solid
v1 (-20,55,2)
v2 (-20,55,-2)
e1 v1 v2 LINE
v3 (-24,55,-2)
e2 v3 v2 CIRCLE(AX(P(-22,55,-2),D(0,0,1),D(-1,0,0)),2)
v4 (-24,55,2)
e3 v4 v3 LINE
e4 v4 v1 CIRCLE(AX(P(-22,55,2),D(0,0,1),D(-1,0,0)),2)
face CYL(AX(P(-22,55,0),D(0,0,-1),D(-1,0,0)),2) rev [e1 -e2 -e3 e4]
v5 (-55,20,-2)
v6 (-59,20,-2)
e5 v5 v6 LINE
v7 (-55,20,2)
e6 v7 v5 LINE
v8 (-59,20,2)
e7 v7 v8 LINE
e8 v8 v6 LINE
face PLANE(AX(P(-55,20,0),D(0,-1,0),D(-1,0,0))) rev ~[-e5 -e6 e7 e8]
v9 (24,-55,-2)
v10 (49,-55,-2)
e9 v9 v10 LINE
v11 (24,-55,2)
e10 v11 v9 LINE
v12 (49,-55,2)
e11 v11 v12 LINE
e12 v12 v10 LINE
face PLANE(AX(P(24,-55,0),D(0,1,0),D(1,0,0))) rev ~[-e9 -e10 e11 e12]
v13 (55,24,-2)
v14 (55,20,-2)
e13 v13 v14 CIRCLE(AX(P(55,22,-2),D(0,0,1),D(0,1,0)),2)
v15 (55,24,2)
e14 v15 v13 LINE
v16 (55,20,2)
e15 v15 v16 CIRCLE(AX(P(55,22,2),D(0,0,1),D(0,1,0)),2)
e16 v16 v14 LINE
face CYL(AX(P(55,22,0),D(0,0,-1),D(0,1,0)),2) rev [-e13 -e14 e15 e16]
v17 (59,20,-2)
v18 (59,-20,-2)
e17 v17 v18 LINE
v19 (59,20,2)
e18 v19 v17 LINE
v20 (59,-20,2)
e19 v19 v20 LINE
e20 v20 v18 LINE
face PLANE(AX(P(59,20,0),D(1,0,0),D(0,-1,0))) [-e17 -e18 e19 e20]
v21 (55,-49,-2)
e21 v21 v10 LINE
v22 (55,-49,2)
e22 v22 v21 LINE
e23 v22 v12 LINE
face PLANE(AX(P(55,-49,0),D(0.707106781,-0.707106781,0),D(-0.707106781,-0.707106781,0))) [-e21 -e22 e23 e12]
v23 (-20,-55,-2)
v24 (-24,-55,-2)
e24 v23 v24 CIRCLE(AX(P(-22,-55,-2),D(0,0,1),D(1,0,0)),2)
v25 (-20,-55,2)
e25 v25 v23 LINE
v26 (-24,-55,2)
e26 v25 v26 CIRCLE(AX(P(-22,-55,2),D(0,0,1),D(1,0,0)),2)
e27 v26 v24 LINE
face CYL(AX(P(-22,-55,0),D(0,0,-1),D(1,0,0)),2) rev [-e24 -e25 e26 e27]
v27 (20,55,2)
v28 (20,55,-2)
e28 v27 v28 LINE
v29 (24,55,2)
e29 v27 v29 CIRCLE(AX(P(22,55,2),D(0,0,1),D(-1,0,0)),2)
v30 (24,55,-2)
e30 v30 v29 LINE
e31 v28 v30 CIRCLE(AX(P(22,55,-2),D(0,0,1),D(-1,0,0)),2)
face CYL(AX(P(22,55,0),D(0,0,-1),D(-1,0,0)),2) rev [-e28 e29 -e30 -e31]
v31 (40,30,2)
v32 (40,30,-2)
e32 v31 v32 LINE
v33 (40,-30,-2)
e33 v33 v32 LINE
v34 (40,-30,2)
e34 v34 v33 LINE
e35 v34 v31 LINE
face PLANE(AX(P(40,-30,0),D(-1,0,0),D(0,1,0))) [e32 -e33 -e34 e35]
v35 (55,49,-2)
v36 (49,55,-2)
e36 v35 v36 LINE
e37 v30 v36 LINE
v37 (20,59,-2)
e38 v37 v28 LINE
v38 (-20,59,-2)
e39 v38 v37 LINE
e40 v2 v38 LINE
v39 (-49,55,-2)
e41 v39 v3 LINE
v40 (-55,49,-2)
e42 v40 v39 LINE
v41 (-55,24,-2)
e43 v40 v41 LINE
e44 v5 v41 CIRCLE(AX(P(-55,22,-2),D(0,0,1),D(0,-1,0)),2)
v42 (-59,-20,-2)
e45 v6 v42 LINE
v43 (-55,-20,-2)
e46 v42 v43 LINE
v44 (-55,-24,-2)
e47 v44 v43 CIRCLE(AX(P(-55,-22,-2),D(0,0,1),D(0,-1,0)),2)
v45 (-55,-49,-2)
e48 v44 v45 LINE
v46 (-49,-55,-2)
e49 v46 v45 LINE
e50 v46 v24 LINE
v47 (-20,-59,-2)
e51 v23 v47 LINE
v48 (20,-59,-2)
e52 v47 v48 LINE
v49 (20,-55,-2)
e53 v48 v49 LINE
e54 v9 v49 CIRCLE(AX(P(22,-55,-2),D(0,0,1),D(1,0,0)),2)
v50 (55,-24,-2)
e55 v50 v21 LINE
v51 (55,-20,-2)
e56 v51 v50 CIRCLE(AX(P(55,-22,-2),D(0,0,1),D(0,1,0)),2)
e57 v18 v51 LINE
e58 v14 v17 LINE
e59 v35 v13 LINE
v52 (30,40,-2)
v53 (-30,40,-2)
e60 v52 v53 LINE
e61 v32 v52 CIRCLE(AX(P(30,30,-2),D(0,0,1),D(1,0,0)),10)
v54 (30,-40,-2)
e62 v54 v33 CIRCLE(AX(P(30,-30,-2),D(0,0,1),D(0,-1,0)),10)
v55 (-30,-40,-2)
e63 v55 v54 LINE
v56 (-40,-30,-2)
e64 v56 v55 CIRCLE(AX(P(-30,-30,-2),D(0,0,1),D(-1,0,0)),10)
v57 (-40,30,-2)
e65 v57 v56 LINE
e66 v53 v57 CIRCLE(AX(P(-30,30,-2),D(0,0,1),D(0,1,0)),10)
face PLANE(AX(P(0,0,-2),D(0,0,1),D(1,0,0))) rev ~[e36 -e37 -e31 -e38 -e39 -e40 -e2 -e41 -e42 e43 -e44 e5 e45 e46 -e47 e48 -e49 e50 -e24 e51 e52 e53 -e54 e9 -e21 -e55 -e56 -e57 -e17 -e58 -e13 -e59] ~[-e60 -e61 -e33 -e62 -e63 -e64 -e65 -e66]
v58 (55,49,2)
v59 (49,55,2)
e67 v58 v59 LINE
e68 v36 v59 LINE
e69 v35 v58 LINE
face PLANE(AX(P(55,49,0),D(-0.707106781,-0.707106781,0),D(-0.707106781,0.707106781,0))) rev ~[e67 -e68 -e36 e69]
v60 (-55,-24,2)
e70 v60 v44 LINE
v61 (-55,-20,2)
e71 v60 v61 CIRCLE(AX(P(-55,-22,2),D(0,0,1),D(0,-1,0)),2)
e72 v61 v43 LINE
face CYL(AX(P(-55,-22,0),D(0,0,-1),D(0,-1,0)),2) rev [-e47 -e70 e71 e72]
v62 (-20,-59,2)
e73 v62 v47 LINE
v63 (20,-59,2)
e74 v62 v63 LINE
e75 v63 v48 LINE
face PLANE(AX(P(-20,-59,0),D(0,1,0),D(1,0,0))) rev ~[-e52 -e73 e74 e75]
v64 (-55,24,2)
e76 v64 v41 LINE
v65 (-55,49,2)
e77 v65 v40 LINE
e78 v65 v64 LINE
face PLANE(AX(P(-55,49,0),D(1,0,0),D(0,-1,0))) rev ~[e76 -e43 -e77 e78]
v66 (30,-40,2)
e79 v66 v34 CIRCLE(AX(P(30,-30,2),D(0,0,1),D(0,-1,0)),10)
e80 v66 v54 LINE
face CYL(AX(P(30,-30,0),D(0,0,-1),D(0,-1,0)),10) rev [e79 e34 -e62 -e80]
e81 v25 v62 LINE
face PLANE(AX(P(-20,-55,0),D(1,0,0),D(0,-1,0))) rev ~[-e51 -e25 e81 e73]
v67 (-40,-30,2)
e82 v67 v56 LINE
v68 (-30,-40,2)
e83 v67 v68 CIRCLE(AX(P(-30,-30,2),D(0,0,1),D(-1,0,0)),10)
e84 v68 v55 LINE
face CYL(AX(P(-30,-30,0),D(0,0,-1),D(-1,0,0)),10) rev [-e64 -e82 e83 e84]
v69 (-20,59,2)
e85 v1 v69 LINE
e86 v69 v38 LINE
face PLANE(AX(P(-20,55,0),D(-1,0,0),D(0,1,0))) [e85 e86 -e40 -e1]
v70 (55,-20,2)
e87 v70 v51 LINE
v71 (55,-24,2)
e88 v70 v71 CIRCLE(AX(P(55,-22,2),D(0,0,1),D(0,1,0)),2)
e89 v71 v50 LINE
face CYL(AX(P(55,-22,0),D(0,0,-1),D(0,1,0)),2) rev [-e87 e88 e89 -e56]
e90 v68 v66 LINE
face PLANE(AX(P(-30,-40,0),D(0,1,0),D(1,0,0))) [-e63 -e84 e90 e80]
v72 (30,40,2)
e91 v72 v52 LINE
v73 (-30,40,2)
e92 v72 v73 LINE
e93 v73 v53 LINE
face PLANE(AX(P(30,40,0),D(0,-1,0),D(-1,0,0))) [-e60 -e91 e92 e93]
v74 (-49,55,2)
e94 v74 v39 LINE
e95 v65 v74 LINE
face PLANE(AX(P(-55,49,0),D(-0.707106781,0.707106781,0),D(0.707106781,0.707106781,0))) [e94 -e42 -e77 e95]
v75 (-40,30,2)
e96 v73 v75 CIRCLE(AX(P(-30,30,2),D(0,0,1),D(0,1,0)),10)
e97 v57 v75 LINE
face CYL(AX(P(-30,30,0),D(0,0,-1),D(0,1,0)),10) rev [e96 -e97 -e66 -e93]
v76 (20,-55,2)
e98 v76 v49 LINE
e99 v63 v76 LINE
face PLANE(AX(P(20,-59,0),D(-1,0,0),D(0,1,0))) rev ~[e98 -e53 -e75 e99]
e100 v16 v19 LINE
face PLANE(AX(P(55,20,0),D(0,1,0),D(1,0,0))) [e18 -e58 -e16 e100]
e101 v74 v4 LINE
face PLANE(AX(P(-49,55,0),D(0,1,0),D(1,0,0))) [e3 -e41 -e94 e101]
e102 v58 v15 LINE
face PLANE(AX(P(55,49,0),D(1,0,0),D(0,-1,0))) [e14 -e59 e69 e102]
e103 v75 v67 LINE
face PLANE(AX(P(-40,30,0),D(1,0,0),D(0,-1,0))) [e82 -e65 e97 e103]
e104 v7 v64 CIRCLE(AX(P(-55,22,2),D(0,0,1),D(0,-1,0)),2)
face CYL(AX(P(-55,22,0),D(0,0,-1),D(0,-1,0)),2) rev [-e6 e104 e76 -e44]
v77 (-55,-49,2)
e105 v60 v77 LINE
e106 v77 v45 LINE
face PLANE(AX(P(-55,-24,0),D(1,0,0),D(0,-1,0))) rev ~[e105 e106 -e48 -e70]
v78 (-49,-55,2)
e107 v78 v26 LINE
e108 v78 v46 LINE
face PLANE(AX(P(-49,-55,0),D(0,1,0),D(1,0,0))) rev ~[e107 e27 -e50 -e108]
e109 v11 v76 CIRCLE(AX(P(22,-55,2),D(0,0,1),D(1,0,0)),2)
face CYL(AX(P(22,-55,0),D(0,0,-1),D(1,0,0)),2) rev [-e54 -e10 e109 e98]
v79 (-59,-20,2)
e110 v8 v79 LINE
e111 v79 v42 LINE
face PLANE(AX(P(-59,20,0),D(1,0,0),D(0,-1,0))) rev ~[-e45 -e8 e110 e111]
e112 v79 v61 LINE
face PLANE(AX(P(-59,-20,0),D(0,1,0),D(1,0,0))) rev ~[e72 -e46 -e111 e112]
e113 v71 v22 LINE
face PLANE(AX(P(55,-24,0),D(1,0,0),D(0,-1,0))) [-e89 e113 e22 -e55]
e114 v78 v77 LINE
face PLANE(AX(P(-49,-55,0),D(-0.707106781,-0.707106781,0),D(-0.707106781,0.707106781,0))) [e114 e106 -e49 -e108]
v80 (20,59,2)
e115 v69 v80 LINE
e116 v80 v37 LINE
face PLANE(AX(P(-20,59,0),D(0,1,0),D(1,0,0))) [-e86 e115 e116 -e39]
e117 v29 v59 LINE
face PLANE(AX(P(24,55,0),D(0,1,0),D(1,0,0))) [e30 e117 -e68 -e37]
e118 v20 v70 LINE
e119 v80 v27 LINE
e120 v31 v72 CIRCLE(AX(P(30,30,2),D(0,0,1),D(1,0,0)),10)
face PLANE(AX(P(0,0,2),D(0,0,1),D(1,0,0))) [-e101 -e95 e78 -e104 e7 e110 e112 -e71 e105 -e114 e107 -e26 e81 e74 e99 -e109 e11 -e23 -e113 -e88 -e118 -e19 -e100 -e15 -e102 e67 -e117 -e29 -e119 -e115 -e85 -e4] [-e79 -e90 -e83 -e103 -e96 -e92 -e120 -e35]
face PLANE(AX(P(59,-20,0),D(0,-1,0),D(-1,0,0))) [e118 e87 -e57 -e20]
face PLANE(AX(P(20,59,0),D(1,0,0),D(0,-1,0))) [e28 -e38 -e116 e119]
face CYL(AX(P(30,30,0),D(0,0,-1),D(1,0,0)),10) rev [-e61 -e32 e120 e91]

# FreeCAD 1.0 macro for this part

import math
import FreeCAD as App
import Part
import Sketcher
from FreeCAD import Vector
Q = App.Units.Quantity

doc = App.newDocument("Part")
body = doc.addObject("PartDesign::Body", "Body")

# Sketch on XY plane
sketch1 = doc.addObject("Sketcher::SketchObject", "Sketch")
body.addObject(sketch1)
sketch1.AttachmentSupport = (doc.XY_Plane, [""])
sketch1.MapMode = "FlatFace"
sketch1.addGeometry(Part.LineSegment(Vector(55, 24, 0), Vector(55, 49, 0)), False)
sketch1.addGeometry(Part.LineSegment(Vector(55, 49, 0), Vector(49, 55, 0)), False)
sketch1.addGeometry(Part.LineSegment(Vector(49, 55, 0), Vector(24, 55, 0)), False)
sketch1.addGeometry(Part.ArcOfCircle(Part.Circle(Vector(22, 55, 0), Vector(0, 0, 1), 2), math.radians(180), math.radians(360)), False)
sketch1.addGeometry(Part.LineSegment(Vector(20, 55, 0), Vector(20, 59, 0)), False)
sketch1.addGeometry(Part.LineSegment(Vector(20, 59, 0), Vector(-20, 59, 0)), False)
sketch1.addGeometry(Part.LineSegment(Vector(-20, 59, 0), Vector(-20, 55, 0)), False)
sketch1.addGeometry(Part.ArcOfCircle(Part.Circle(Vector(-22, 55, 0), Vector(0, 0, 1), 2), math.radians(180), math.radians(360)), False)
sketch1.addGeometry(Part.LineSegment(Vector(-24, 55, 0), Vector(-49, 55, 0)), False)
sketch1.addGeometry(Part.LineSegment(Vector(-49, 55, 0), Vector(-55, 49, 0)), False)
sketch1.addGeometry(Part.LineSegment(Vector(-55, 49, 0), Vector(-55, 24, 0)), False)
sketch1.addGeometry(Part.ArcOfCircle(Part.Circle(Vector(-55, 22, 0), Vector(0, 0, 1), 2), math.radians(-90), math.radians(90)), False)
sketch1.addGeometry(Part.LineSegment(Vector(-55, 20, 0), Vector(-59, 20, 0)), False)
sketch1.addGeometry(Part.LineSegment(Vector(-59, 20, 0), Vector(-59, -20, 0)), False)
sketch1.addGeometry(Part.LineSegment(Vector(-59, -20, 0), Vector(-55, -20, 0)), False)
sketch1.addGeometry(Part.ArcOfCircle(Part.Circle(Vector(-55, -22, 0), Vector(0, 0, 1), 2), math.radians(-90), math.radians(90)), False)
sketch1.addGeometry(Part.LineSegment(Vector(-55, -24, 0), Vector(-55, -49, 0)), False)
sketch1.addGeometry(Part.LineSegment(Vector(-55, -49, 0), Vector(-49, -55, 0)), False)
sketch1.addGeometry(Part.LineSegment(Vector(-49, -55, 0), Vector(-24, -55, 0)), False)
sketch1.addGeometry(Part.ArcOfCircle(Part.Circle(Vector(-22, -55, 0), Vector(0, 0, 1), 2), math.radians(0), math.radians(180)), False)
sketch1.addGeometry(Part.LineSegment(Vector(-20, -55, 0), Vector(-20, -59, 0)), False)
sketch1.addGeometry(Part.LineSegment(Vector(-20, -59, 0), Vector(20, -59, 0)), False)
sketch1.addGeometry(Part.LineSegment(Vector(20, -59, 0), Vector(20, -55, 0)), False)
sketch1.addGeometry(Part.ArcOfCircle(Part.Circle(Vector(22, -55, 0), Vector(0, 0, 1), 2), math.radians(0), math.radians(180)), False)
sketch1.addGeometry(Part.LineSegment(Vector(24, -55, 0), Vector(49, -55, 0)), False)
sketch1.addGeometry(Part.LineSegment(Vector(49, -55, 0), Vector(55, -49, 0)), False)
sketch1.addGeometry(Part.LineSegment(Vector(55, -49, 0), Vector(55, -24, 0)), False)
sketch1.addGeometry(Part.ArcOfCircle(Part.Circle(Vector(55, -22, 0), Vector(0, 0, 1), 2), math.radians(90), math.radians(270)), False)
sketch1.addGeometry(Part.LineSegment(Vector(55, -20, 0), Vector(59, -20, 0)), False)
sketch1.addGeometry(Part.LineSegment(Vector(59, -20, 0), Vector(59, 20, 0)), False)
sketch1.addGeometry(Part.LineSegment(Vector(59, 20, 0), Vector(55, 20, 0)), False)
sketch1.addGeometry(Part.ArcOfCircle(Part.Circle(Vector(55, 22, 0), Vector(0, 0, 1), 2), math.radians(90), math.radians(270)), False)
sketch1.addGeometry(Part.LineSegment(Vector(-40, -30, 0), Vector(-40, 30, 0)), False)
sketch1.addGeometry(Part.ArcOfCircle(Part.Circle(Vector(-30, 30, 0), Vector(0, 0, 1), 10), math.radians(90), math.radians(180)), False)
sketch1.addGeometry(Part.LineSegment(Vector(-30, 40, 0), Vector(30, 40, 0)), False)
sketch1.addGeometry(Part.ArcOfCircle(Part.Circle(Vector(30, 30, 0), Vector(0, 0, 1), 10), math.radians(0), math.radians(90)), False)
sketch1.addGeometry(Part.LineSegment(Vector(40, 30, 0), Vector(40, -30, 0)), False)
sketch1.addGeometry(Part.ArcOfCircle(Part.Circle(Vector(30, -30, 0), Vector(0, 0, 1), 10), math.radians(-90), math.radians(0)), False)
sketch1.addGeometry(Part.LineSegment(Vector(30, -40, 0), Vector(-30, -40, 0)), False)
sketch1.addGeometry(Part.ArcOfCircle(Part.Circle(Vector(-30, -30, 0), Vector(0, 0, 1), 10), math.radians(180), math.radians(270)), False)
sketch1.addConstraint(Sketcher.Constraint("Coincident", 0, 2, 1, 1))
sketch1.addConstraint(Sketcher.Constraint("Coincident", 1, 2, 2, 1))
sketch1.addConstraint(Sketcher.Constraint("Coincident", 2, 2, 3, 2))
sketch1.addConstraint(Sketcher.Constraint("Tangent", 3, 1, 4, 1))
sketch1.addConstraint(Sketcher.Constraint("Coincident", 4, 2, 5, 1))
sketch1.addConstraint(Sketcher.Constraint("Coincident", 5, 2, 6, 1))
sketch1.addConstraint(Sketcher.Constraint("Tangent", 6, 2, 7, 2))
sketch1.addConstraint(Sketcher.Constraint("Coincident", 7, 1, 8, 1))
sketch1.addConstraint(Sketcher.Constraint("Coincident", 8, 2, 9, 1))
sketch1.addConstraint(Sketcher.Constraint("Coincident", 9, 2, 10, 1))
sketch1.addConstraint(Sketcher.Constraint("Coincident", 10, 2, 11, 2))
sketch1.addConstraint(Sketcher.Constraint("Tangent", 11, 1, 12, 1))
sketch1.addConstraint(Sketcher.Constraint("Coincident", 12, 2, 13, 1))
sketch1.addConstraint(Sketcher.Constraint("Coincident", 13, 2, 14, 1))
sketch1.addConstraint(Sketcher.Constraint("Tangent", 14, 2, 15, 2))
sketch1.addConstraint(Sketcher.Constraint("Coincident", 15, 1, 16, 1))
sketch1.addConstraint(Sketcher.Constraint("Coincident", 16, 2, 17, 1))
sketch1.addConstraint(Sketcher.Constraint("Coincident", 17, 2, 18, 1))
sketch1.addConstraint(Sketcher.Constraint("Coincident", 18, 2, 19, 2))
sketch1.addConstraint(Sketcher.Constraint("Tangent", 19, 1, 20, 1))
sketch1.addConstraint(Sketcher.Constraint("Coincident", 20, 2, 21, 1))
sketch1.addConstraint(Sketcher.Constraint("Coincident", 21, 2, 22, 1))
sketch1.addConstraint(Sketcher.Constraint("Tangent", 22, 2, 23, 2))
sketch1.addConstraint(Sketcher.Constraint("Coincident", 23, 1, 24, 1))
sketch1.addConstraint(Sketcher.Constraint("Coincident", 24, 2, 25, 1))
sketch1.addConstraint(Sketcher.Constraint("Coincident", 25, 2, 26, 1))
sketch1.addConstraint(Sketcher.Constraint("Coincident", 26, 2, 27, 2))
sketch1.addConstraint(Sketcher.Constraint("Tangent", 27, 1, 28, 1))
sketch1.addConstraint(Sketcher.Constraint("Coincident", 28, 2, 29, 1))
sketch1.addConstraint(Sketcher.Constraint("Coincident", 29, 2, 30, 1))
sketch1.addConstraint(Sketcher.Constraint("Tangent", 30, 2, 31, 2))
sketch1.addConstraint(Sketcher.Constraint("Coincident", 31, 1, 0, 1))
sketch1.addConstraint(Sketcher.Constraint("Tangent", 32, 2, 33, 2))
sketch1.addConstraint(Sketcher.Constraint("Tangent", 33, 1, 34, 1))
sketch1.addConstraint(Sketcher.Constraint("Tangent", 34, 2, 35, 2))
sketch1.addConstraint(Sketcher.Constraint("Tangent", 35, 1, 36, 1))
sketch1.addConstraint(Sketcher.Constraint("Tangent", 36, 2, 37, 2))
sketch1.addConstraint(Sketcher.Constraint("Tangent", 37, 1, 38, 1))
sketch1.addConstraint(Sketcher.Constraint("Tangent", 38, 2, 39, 2))
sketch1.addConstraint(Sketcher.Constraint("Tangent", 39, 1, 32, 1))
sketch1.addConstraint(Sketcher.Constraint("Vertical", 0))
sketch1.addConstraint(Sketcher.Constraint("Horizontal", 2))
sketch1.addConstraint(Sketcher.Constraint("Vertical", 4))
sketch1.addConstraint(Sketcher.Constraint("Horizontal", 5))
sketch1.addConstraint(Sketcher.Constraint("Vertical", 6))
sketch1.addConstraint(Sketcher.Constraint("Horizontal", 8))
sketch1.addConstraint(Sketcher.Constraint("Vertical", 10))
sketch1.addConstraint(Sketcher.Constraint("Horizontal", 12))
sketch1.addConstraint(Sketcher.Constraint("Vertical", 13))
sketch1.addConstraint(Sketcher.Constraint("Horizontal", 14))
sketch1.addConstraint(Sketcher.Constraint("Vertical", 16))
sketch1.addConstraint(Sketcher.Constraint("Horizontal", 18))
sketch1.addConstraint(Sketcher.Constraint("Vertical", 20))
sketch1.addConstraint(Sketcher.Constraint("Horizontal", 21))
sketch1.addConstraint(Sketcher.Constraint("Vertical", 22))
sketch1.addConstraint(Sketcher.Constraint("Horizontal", 24))
sketch1.addConstraint(Sketcher.Constraint("Vertical", 26))
sketch1.addConstraint(Sketcher.Constraint("Horizontal", 28))
sketch1.addConstraint(Sketcher.Constraint("Vertical", 29))
sketch1.addConstraint(Sketcher.Constraint("Horizontal", 30))
sketch1.addConstraint(Sketcher.Constraint("Vertical", 32))
sketch1.addConstraint(Sketcher.Constraint("Horizontal", 34))
sketch1.addConstraint(Sketcher.Constraint("Vertical", 36))
sketch1.addConstraint(Sketcher.Constraint("Horizontal", 38))
sketch1.addConstraint(Sketcher.Constraint("Equal", 3, 7))
sketch1.addConstraint(Sketcher.Constraint("Equal", 7, 11))
sketch1.addConstraint(Sketcher.Constraint("Equal", 11, 15))
sketch1.addConstraint(Sketcher.Constraint("Equal", 15, 19))
sketch1.addConstraint(Sketcher.Constraint("Equal", 19, 23))
sketch1.addConstraint(Sketcher.Constraint("Equal", 23, 27))
sketch1.addConstraint(Sketcher.Constraint("Equal", 27, 31))
sketch1.addConstraint(Sketcher.Constraint("Equal", 33, 35))
sketch1.addConstraint(Sketcher.Constraint("Equal", 35, 37))
sketch1.addConstraint(Sketcher.Constraint("Equal", 37, 39))
sketch1.addConstraint(Sketcher.Constraint("Symmetric", 3, 3, 19, 3, -1, 1))
sketch1.addConstraint(Sketcher.Constraint("Symmetric", 7, 3, 23, 3, -1, 1))
sketch1.addConstraint(Sketcher.Constraint("Symmetric", 11, 3, 27, 3, -1, 1))
sketch1.addConstraint(Sketcher.Constraint("Symmetric", 15, 3, 31, 3, -1, 1))
sketch1.addConstraint(Sketcher.Constraint("Symmetric", 33, 3, 37, 3, -1, 1))
sketch1.addConstraint(Sketcher.Constraint("Symmetric", 0, 2, 16, 2, -1, 1))
sketch1.addConstraint(Sketcher.Constraint("Symmetric", 1, 2, 17, 2, -1, 1))
sketch1.addConstraint(Sketcher.Constraint("Symmetric", 8, 2, 24, 2, -1, 1))
sketch1.addConstraint(Sketcher.Constraint("Symmetric", 9, 2, 25, 2, -1, 1))
sketch1.addConstraint(Sketcher.Constraint("Symmetric", 3, 3, 7, 3, -2))
sketch1.addConstraint(Sketcher.Constraint("Symmetric", 15, 3, 27, 3, -2))
sketch1.addConstraint(Sketcher.Constraint("Symmetric", 1, 2, 8, 2, -2))
sketch1.addConstraint(Sketcher.Constraint("Symmetric", 0, 2, 9, 2, -2))
sketch1.addConstraint(Sketcher.Constraint("Perpendicular", 1, 9))
sketch1.addConstraint(Sketcher.Constraint("Horizontal", 7, 3, 1, 2))
sketch1.addConstraint(Sketcher.Constraint("Vertical", 31, 3, 0, 2))
sketch1.addConstraint(Sketcher.Constraint("Equal", 14, 28))
sketch1.addConstraint(Sketcher.Constraint("Equal", 24, 0))
sketch1.addConstraint(Sketcher.Constraint("Equal", 30, 4))
sketch1.addConstraint(Sketcher.Constraint("Equal", 21, 13))
sketch1.addConstraint(Sketcher.Constraint("Equal", 6, 20))
sketch1.addConstraint(Sketcher.Constraint("Equal", 38, 32))
sketch1.addConstraint(Sketcher.Constraint("Radius", 3, Q("2 mm")))
sketch1.addConstraint(Sketcher.Constraint("Radius", 33, Q("10 mm")))
sketch1.addConstraint(Sketcher.Constraint("DistanceX", 5, 2, 5, 1, Q("40 mm")))
sketch1.addConstraint(Sketcher.Constraint("DistanceX", 12, 2, 12, 1, Q("4 mm")))
sketch1.addConstraint(Sketcher.Constraint("DistanceX", 32, 2, -1, 1, Q("40 mm")))
sketch1.addConstraint(Sketcher.Constraint("DistanceY", 19, 3, 7, 3, Q("110 mm")))
sketch1.addConstraint(Sketcher.Constraint("DistanceY", 0, 2, 3, 3, Q("6 mm")))
pad1 = doc.addObject("PartDesign::Pad", "Pad")
body.addObject(pad1)
pad1.Profile = sketch1
pad1.Length = 4
pad1.Midplane = True

doc.recompute()
